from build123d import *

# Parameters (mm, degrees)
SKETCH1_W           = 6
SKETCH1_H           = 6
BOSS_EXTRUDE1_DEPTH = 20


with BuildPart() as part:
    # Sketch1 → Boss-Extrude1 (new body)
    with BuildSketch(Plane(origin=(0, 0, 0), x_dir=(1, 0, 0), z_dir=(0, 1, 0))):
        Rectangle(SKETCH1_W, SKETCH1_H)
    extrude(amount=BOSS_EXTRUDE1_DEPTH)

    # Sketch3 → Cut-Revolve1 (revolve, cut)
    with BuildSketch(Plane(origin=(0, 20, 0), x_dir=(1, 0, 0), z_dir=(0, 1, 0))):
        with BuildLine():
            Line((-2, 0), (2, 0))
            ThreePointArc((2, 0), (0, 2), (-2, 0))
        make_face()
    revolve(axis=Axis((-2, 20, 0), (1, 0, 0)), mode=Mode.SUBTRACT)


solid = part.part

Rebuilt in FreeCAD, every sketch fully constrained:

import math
import FreeCAD as App
import Part
import Sketcher
from FreeCAD import Vector
Q = App.Units.Quantity


def add_polygon(sketch, points):
    """Adds a closed chain of lines whose ends are joined by coincident constraints."""
    first, n = sketch.GeometryCount, len(points)
    for a, b in zip(points, points[1:] + points[:1]):
        sketch.addGeometry(Part.LineSegment(App.Vector(*a, 0), App.Vector(*b, 0)), False)
    for i in range(n):
        sketch.addConstraint(Sketcher.Constraint("Coincident", first + i, 2, first + (i + 1) % n, 1))

doc = App.newDocument("Part")
body = doc.addObject("PartDesign::Body", "Body")

# Sketch on XZ plane
sketch1 = doc.addObject("Sketcher::SketchObject", "Sketch")
body.addObject(sketch1)
sketch1.AttachmentSupport = (doc.XZ_Plane, [""])
sketch1.MapMode = "FlatFace"
add_polygon(sketch1, [(-3, -3), (-3, 3), (3, 3), (3, -3)])  # lines 0-3
sketch1.addConstraint([
    Sketcher.Constraint("Vertical", 0),
    Sketcher.Constraint("Horizontal", 1),
    Sketcher.Constraint("Vertical", 2),
    Sketcher.Constraint("Horizontal", 3),
    Sketcher.Constraint("Symmetric", 0, 2, 2, 2, -1, 1),
    Sketcher.Constraint("Equal", 3, 0),
    Sketcher.Constraint("DistanceX", 1, 1, 1, 2, Q("6 mm")),
])
pad1 = doc.addObject("PartDesign::Pad", "Pad")
body.addObject(pad1)
pad1.Profile = sketch1
pad1.Length = 20
pad1.Reversed = True

# Sketch on XZ plane
sketch2 = doc.addObject("Sketcher::SketchObject", "Sketch001")
body.addObject(sketch2)
sketch2.AttachmentSupport = (doc.XZ_Plane, [""])
sketch2.MapMode = "FlatFace"
sketch2.AttachmentOffset = App.Placement(Vector(0, 0, -20), App.Rotation())
sketch2.addGeometry([
    Part.LineSegment(Vector(-2, 0, 0), Vector(2, 0, 0)),
    Part.ArcOfCircle(Part.Circle(Vector(0, 0, 0), Vector(0, 0, 1), 2), math.radians(180), math.radians(360)),
], False)
sketch2.addConstraint([
    Sketcher.Constraint("Coincident", 0, 1, 1, 1),
    Sketcher.Constraint("Coincident", 1, 2, 0, 2),
    Sketcher.Constraint("Horizontal", 0),
    Sketcher.Constraint("Coincident", 1, 3, -1, 1),
    Sketcher.Constraint("PointOnObject", 0, 1, -1),
    Sketcher.Constraint("Radius", 1, Q("2 mm")),
])
groove = doc.addObject("PartDesign::Groove", "Groove")
body.addObject(groove)
groove.Profile = sketch2
groove.ReferenceAxis = (sketch2, ["H_Axis"])
groove.Angle = 360

doc.recompute()
